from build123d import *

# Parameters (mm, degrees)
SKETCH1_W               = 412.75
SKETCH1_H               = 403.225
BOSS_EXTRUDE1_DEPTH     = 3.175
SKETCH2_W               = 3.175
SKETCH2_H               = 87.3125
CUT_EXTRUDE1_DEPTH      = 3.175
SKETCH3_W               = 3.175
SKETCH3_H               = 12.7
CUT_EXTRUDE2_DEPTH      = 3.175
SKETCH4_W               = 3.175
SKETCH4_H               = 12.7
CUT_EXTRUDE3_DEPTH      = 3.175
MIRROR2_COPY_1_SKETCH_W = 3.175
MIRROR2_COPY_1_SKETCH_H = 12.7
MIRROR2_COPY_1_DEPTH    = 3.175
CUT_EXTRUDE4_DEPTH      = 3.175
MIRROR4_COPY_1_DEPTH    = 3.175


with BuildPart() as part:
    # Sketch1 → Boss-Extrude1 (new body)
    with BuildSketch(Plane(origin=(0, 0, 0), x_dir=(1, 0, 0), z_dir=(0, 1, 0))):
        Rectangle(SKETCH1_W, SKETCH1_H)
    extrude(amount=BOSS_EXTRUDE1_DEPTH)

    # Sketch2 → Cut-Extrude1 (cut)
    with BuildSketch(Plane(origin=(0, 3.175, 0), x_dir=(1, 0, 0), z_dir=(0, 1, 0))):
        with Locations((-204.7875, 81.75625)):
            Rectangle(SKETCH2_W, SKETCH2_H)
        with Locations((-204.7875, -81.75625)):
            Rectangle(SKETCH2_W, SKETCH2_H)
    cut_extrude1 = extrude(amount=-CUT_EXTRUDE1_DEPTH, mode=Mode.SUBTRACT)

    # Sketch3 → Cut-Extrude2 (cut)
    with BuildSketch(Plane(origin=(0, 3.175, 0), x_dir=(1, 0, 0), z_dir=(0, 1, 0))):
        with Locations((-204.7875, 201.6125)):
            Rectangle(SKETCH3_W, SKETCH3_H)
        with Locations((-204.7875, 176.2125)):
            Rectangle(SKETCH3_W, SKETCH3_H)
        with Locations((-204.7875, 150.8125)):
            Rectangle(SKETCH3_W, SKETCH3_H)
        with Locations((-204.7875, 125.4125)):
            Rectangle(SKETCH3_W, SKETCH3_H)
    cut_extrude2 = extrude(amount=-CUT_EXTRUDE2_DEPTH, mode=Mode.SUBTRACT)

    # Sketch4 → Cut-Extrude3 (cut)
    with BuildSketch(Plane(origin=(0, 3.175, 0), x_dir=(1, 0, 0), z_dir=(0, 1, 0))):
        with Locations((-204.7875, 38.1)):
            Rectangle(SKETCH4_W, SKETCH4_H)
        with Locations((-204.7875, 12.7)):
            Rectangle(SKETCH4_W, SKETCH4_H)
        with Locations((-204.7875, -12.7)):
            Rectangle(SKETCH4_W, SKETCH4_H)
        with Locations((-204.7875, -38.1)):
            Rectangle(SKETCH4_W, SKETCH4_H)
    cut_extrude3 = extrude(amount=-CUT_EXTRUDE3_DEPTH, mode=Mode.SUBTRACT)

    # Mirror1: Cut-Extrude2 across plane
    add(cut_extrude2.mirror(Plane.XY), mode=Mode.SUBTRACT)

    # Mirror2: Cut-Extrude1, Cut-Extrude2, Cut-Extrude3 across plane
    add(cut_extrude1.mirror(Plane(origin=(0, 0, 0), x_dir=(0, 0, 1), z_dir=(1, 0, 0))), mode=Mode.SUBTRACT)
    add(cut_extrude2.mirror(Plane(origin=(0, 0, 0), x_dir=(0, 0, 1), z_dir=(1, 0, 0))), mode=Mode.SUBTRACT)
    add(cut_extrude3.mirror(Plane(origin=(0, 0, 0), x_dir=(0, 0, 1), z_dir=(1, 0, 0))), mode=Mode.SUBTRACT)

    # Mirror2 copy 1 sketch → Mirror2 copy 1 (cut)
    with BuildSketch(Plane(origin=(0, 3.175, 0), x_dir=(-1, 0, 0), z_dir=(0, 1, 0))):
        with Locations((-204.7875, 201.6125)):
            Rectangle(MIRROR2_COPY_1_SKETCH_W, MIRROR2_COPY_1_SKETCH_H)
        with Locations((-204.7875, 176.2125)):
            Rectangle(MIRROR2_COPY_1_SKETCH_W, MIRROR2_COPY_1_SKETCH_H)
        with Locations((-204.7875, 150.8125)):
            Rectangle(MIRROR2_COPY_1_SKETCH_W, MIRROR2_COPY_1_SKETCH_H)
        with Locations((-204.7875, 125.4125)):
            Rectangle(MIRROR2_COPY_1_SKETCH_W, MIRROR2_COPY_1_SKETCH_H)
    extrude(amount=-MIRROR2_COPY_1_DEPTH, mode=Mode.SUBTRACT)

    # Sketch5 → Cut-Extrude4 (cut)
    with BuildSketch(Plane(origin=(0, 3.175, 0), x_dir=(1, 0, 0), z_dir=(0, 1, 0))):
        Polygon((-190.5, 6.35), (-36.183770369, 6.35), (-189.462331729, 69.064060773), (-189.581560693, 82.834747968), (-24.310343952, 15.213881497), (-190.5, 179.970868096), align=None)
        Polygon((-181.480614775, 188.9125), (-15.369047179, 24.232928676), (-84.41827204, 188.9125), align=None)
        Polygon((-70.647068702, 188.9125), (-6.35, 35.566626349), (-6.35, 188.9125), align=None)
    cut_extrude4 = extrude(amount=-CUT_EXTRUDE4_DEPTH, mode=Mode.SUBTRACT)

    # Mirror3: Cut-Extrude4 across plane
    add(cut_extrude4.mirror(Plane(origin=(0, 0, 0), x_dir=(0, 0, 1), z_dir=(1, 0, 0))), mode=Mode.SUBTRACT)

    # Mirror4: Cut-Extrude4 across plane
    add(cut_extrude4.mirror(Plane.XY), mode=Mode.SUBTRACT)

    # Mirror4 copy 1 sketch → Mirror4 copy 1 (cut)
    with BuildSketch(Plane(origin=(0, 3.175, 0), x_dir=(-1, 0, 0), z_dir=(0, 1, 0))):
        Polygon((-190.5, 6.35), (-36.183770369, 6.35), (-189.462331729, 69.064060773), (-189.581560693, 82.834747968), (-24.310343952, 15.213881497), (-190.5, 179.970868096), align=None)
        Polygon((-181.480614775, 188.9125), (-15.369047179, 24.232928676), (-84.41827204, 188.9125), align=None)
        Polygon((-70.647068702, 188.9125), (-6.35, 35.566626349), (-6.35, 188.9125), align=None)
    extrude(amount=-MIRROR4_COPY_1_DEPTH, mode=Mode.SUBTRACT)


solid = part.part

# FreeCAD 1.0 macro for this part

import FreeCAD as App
import Part
import Sketcher
Q = App.Units.Quantity


def add_polygon(sketch, points):
    """Adds a closed chain of lines whose ends are joined by coincident constraints."""
    first, n = sketch.GeometryCount, len(points)
    for a, b in zip(points, points[1:] + points[:1]):
        sketch.addGeometry(Part.LineSegment(App.Vector(*a, 0), App.Vector(*b, 0)), False)
    for i in range(n):
        sketch.addConstraint(Sketcher.Constraint("Coincident", first + i, 2, first + (i + 1) % n, 1))

doc = App.newDocument("Part")
body = doc.addObject("PartDesign::Body", "Body")

sketch1 = body.newObject("Sketcher::SketchObject", "Sketch")
sketch1.AttachmentSupport = (doc.getObject("XZ_Plane"), [""])
sketch1.MapMode = "FlatFace"
add_polygon(sketch1, [(-206, -202), (-206, 202), (206, 202), (206, -202)])
sketch1.addConstraint(Sketcher.Constraint("Vertical", 0))
sketch1.addConstraint(Sketcher.Constraint("Horizontal", 1))
sketch1.addConstraint(Sketcher.Constraint("Vertical", 2))
sketch1.addConstraint(Sketcher.Constraint("Horizontal", 3))
sketch1.addConstraint(Sketcher.Constraint("Symmetric", 0, 2, 2, 2, -1, 1))
sketch1.addConstraint(Sketcher.Constraint("DistanceX", 1, 1, 1, 2, Q("16.25 in")))
sketch1.addConstraint(Sketcher.Constraint("DistanceY", 0, 1, 0, 2, Q("15.875 in")))
pad1 = body.newObject("PartDesign::Pad", "Pad")
pad1.Profile = sketch1
pad1.Length = Q("0.125 in")
pad1.Reversed = True

sketch2 = body.newObject("Sketcher::SketchObject", "Sketch001")
sketch2.AttachmentSupport = (doc.getObject("XZ_Plane"), [""])
sketch2.MapMode = "FlatFace"
sketch2.AttachmentOffset = App.Placement(App.Vector(0, 0, -0.125 * 25.4), App.Rotation())
add_polygon(sketch2, [(-206.4, -125.4), (-206.4, -38.1), (-203.2, -38.1), (-203.2, -125.4)])
add_polygon(sketch2, [(-206.4, 38.1), (-206.4, 125.4), (-203.2, 125.4), (-203.2, 38.1)])
sketch2.addConstraint(Sketcher.Constraint("Vertical", 0))
sketch2.addConstraint(Sketcher.Constraint("Horizontal", 1))
sketch2.addConstraint(Sketcher.Constraint("Vertical", 2))
sketch2.addConstraint(Sketcher.Constraint("Horizontal", 3))
sketch2.addConstraint(Sketcher.Constraint("Vertical", 4))
sketch2.addConstraint(Sketcher.Constraint("Horizontal", 5))
sketch2.addConstraint(Sketcher.Constraint("Vertical", 6))
sketch2.addConstraint(Sketcher.Constraint("Horizontal", 7))
sketch2.addConstraint(Sketcher.Constraint("Symmetric", 3, 2, 4, 2, -1))
sketch2.addConstraint(Sketcher.Constraint("Symmetric", 1, 2, 6, 2, -1))
sketch2.addConstraint(Sketcher.Constraint("DistanceX", 1, 2, -1, 1, Q("8 in")))
sketch2.addConstraint(Sketcher.Constraint("DistanceY", 1, 2, 6, 2, Q("3 in")))
sketch2.addConstraint(Sketcher.Constraint("DistanceX", 1, 1, 1, 2, Q("0.125 in")))
sketch2.addConstraint(Sketcher.Constraint("DistanceY", 0, 1, 0, 2, Q("3.4375 in")))
pocket1 = body.newObject("PartDesign::Pocket", "Pocket")
pocket1.Profile = sketch2
pocket1.Length = Q("0.125 in")
pocket1.Reversed = True

sketch3 = body.newObject("Sketcher::SketchObject", "Sketch002")
sketch3.AttachmentSupport = (doc.getObject("XZ_Plane"), [""])
sketch3.MapMode = "FlatFace"
sketch3.AttachmentOffset = App.Placement(App.Vector(0, 0, -0.125 * 25.4), App.Rotation())
add_polygon(sketch3, [(-206.4, -208), (-206.4, -195.3), (-203.2, -195.3), (-203.2, -208)])
add_polygon(sketch3, [(-206.4, -182.6), (-206.4, -169.9), (-203.2, -169.9), (-203.2, -182.6)])
add_polygon(sketch3, [(-206.4, -157.2), (-206.4, -144.5), (-203.2, -144.5), (-203.2, -157.2)])
add_polygon(sketch3, [(-206.4, -131.8), (-206.4, -119.1), (-203.2, -119.1), (-203.2, -131.8)])
sketch3.addConstraint(Sketcher.Constraint("Vertical", 0))
sketch3.addConstraint(Sketcher.Constraint("Horizontal", 1))
sketch3.addConstraint(Sketcher.Constraint("Vertical", 2))
sketch3.addConstraint(Sketcher.Constraint("Horizontal", 3))
sketch3.addConstraint(Sketcher.Constraint("Vertical", 4))
sketch3.addConstraint(Sketcher.Constraint("Horizontal", 5))
sketch3.addConstraint(Sketcher.Constraint("Vertical", 6))
sketch3.addConstraint(Sketcher.Constraint("Horizontal", 7))
sketch3.addConstraint(Sketcher.Constraint("Vertical", 8))
sketch3.addConstraint(Sketcher.Constraint("Horizontal", 9))
sketch3.addConstraint(Sketcher.Constraint("Vertical", 10))
sketch3.addConstraint(Sketcher.Constraint("Horizontal", 11))
sketch3.addConstraint(Sketcher.Constraint("Vertical", 12))
sketch3.addConstraint(Sketcher.Constraint("Horizontal", 13))
sketch3.addConstraint(Sketcher.Constraint("Vertical", 14))
sketch3.addConstraint(Sketcher.Constraint("Horizontal", 15))
sketch3.addConstraint(Sketcher.Constraint("Vertical", 3, 2, 4, 2))
sketch3.addConstraint(Sketcher.Constraint("Vertical", 2, 2, 5, 2))
sketch3.addConstraint(Sketcher.Constraint("Vertical", 7, 2, 8, 2))
sketch3.addConstraint(Sketcher.Constraint("Vertical", 6, 2, 9, 2))
sketch3.addConstraint(Sketcher.Constraint("Vertical", 11, 2, 12, 2))
sketch3.addConstraint(Sketcher.Constraint("Vertical", 10, 2, 13, 2))
sketch3.addConstraint(Sketcher.Constraint("Equal", 2, 4))
sketch3.addConstraint(Sketcher.Constraint("Equal", 6, 8))
sketch3.addConstraint(Sketcher.Constraint("Equal", 10, 12))
sketch3.addConstraint(Sketcher.Constraint("DistanceY", 0, 1, 0, 2, Q("0.5 in")))
sketch3.addConstraint(Sketcher.Constraint("DistanceX", 1, 2, -1, 1, Q("8 in")))
sketch3.addConstraint(Sketcher.Constraint("DistanceY", 0, 2, 4, 2, Q("1 in")))
sketch3.addConstraint(Sketcher.Constraint("DistanceY", 4, 2, 8, 2, Q("1 in")))
sketch3.addConstraint(Sketcher.Constraint("DistanceY", 8, 2, 12, 2, Q("1 in")))
sketch3.addConstraint(Sketcher.Constraint("DistanceX", 1, 1, 1, 2, Q("0.125 in")))
sketch3.addConstraint(Sketcher.Constraint("DistanceY", 0, 2, -1, 1, Q("7.6875 in")))
pocket2 = body.newObject("PartDesign::Pocket", "Pocket001")
pocket2.Profile = sketch3
pocket2.Length = Q("0.125 in")
pocket2.Reversed = True

sketch4 = body.newObject("Sketcher::SketchObject", "Sketch003")
sketch4.AttachmentSupport = (doc.getObject("XZ_Plane"), [""])
sketch4.MapMode = "FlatFace"
sketch4.AttachmentOffset = App.Placement(App.Vector(0, 0, -0.125 * 25.4), App.Rotation())
add_polygon(sketch4, [(-206.4, -44.5), (-206.4, -31.8), (-203.2, -31.8), (-203.2, -44.5)])
add_polygon(sketch4, [(-206.4, -19.1), (-206.4, -6.3), (-203.2, -6.3), (-203.2, -19.1)])
add_polygon(sketch4, [(-206.4, 6.3), (-206.4, 19.1), (-203.2, 19.1), (-203.2, 6.3)])
add_polygon(sketch4, [(-206.4, 31.8), (-206.4, 44.5), (-203.2, 44.5), (-203.2, 31.8)])
sketch4.addConstraint(Sketcher.Constraint("Vertical", 0))
sketch4.addConstraint(Sketcher.Constraint("Horizontal", 1))
sketch4.addConstraint(Sketcher.Constraint("Vertical", 2))
sketch4.addConstraint(Sketcher.Constraint("Horizontal", 3))
sketch4.addConstraint(Sketcher.Constraint("Vertical", 4))
sketch4.addConstraint(Sketcher.Constraint("Horizontal", 5))
sketch4.addConstraint(Sketcher.Constraint("Vertical", 6))
sketch4.addConstraint(Sketcher.Constraint("Horizontal", 7))
sketch4.addConstraint(Sketcher.Constraint("Vertical", 8))
sketch4.addConstraint(Sketcher.Constraint("Horizontal", 9))
sketch4.addConstraint(Sketcher.Constraint("Vertical", 10))
sketch4.addConstraint(Sketcher.Constraint("Horizontal", 11))
sketch4.addConstraint(Sketcher.Constraint("Vertical", 12))
sketch4.addConstraint(Sketcher.Constraint("Horizontal", 13))
sketch4.addConstraint(Sketcher.Constraint("Vertical", 14))
sketch4.addConstraint(Sketcher.Constraint("Horizontal", 15))
sketch4.addConstraint(Sketcher.Constraint("Symmetric", 7, 2, 8, 2, -1))
sketch4.addConstraint(Sketcher.Constraint("Symmetric", 5, 2, 10, 2, -1))
sketch4.addConstraint(Sketcher.Constraint("Symmetric", 3, 2, 12, 2, -1))
sketch4.addConstraint(Sketcher.Constraint("Symmetric", 1, 2, 14, 2, -1))
sketch4.addConstraint(Sketcher.Constraint("Vertical", 3, 2, 4, 2))
sketch4.addConstraint(Sketcher.Constraint("Vertical", 2, 2, 5, 2))
sketch4.addConstraint(Sketcher.Constraint("Equal", 2, 4))
sketch4.addConstraint(Sketcher.Constraint("DistanceY", 0, 1, 0, 2, Q("0.5 in")))
sketch4.addConstraint(Sketcher.Constraint("DistanceX", 1, 2, -1, 1, Q("8 in")))
sketch4.addConstraint(Sketcher.Constraint("DistanceY", 0, 2, 4, 2, Q("1 in")))
sketch4.addConstraint(Sketcher.Constraint("DistanceY", 4, 2, 8, 2, Q("1 in")))
sketch4.addConstraint(Sketcher.Constraint("DistanceX", 1, 1, 1, 2, Q("0.125 in")))
pocket3 = body.newObject("PartDesign::Pocket", "Pocket002")
pocket3.Profile = sketch4
pocket3.Length = Q("0.125 in")
pocket3.Reversed = True
doc.recompute()

mirrored = body.newObject("PartDesign::Mirrored", "Mirrored")
mirrored.Originals = [pocket2]
mirrored.MirrorPlane = (doc.getObject("XY_Plane"), [""])
body.Tip = mirrored
doc.recompute()

mirrored2 = body.newObject("PartDesign::Mirrored", "Mirrored001")
mirrored2.Originals = [pocket1, pocket2, pocket3]
mirrored2.MirrorPlane = (doc.getObject("YZ_Plane"), [""])
body.Tip = mirrored2

sketch5 = body.newObject("Sketcher::SketchObject", "Sketch004")
sketch5.AttachmentSupport = (doc.getObject("XZ_Plane"), [""])
sketch5.MapMode = "FlatFace"
sketch5.AttachmentOffset = App.Placement(App.Vector(0, 0, -0.125 * 25.4), App.Rotation())
add_polygon(sketch5, [(206.4, 208), (206.4, 195.3), (203.2, 195.3), (203.2, 208)])
add_polygon(sketch5, [(206.4, 182.6), (206.4, 169.9), (203.2, 169.9), (203.2, 182.6)])
add_polygon(sketch5, [(206.4, 157.2), (206.4, 144.5), (203.2, 144.5), (203.2, 157.2)])
add_polygon(sketch5, [(206.4, 131.8), (206.4, 119.1), (203.2, 119.1), (203.2, 131.8)])
sketch5.addConstraint(Sketcher.Constraint("Vertical", 0))
sketch5.addConstraint(Sketcher.Constraint("Horizontal", 1))
sketch5.addConstraint(Sketcher.Constraint("Vertical", 2))
sketch5.addConstraint(Sketcher.Constraint("Horizontal", 3))
sketch5.addConstraint(Sketcher.Constraint("Vertical", 4))
sketch5.addConstraint(Sketcher.Constraint("Horizontal", 5))
sketch5.addConstraint(Sketcher.Constraint("Vertical", 6))
sketch5.addConstraint(Sketcher.Constraint("Horizontal", 7))
sketch5.addConstraint(Sketcher.Constraint("Vertical", 8))
sketch5.addConstraint(Sketcher.Constraint("Horizontal", 9))
sketch5.addConstraint(Sketcher.Constraint("Vertical", 10))
sketch5.addConstraint(Sketcher.Constraint("Horizontal", 11))
sketch5.addConstraint(Sketcher.Constraint("Vertical", 12))
sketch5.addConstraint(Sketcher.Constraint("Horizontal", 13))
sketch5.addConstraint(Sketcher.Constraint("Vertical", 14))
sketch5.addConstraint(Sketcher.Constraint("Horizontal", 15))
sketch5.addConstraint(Sketcher.Constraint("Vertical", 3, 2, 4, 2))
sketch5.addConstraint(Sketcher.Constraint("Vertical", 2, 2, 5, 2))
sketch5.addConstraint(Sketcher.Constraint("Vertical", 7, 2, 8, 2))
sketch5.addConstraint(Sketcher.Constraint("Vertical", 6, 2, 9, 2))
sketch5.addConstraint(Sketcher.Constraint("Vertical", 11, 2, 12, 2))
sketch5.addConstraint(Sketcher.Constraint("Vertical", 10, 2, 13, 2))
sketch5.addConstraint(Sketcher.Constraint("Equal", 2, 4))
sketch5.addConstraint(Sketcher.Constraint("Equal", 6, 8))
sketch5.addConstraint(Sketcher.Constraint("Equal", 10, 12))
sketch5.addConstraint(Sketcher.Constraint("DistanceY", 0, 2, 0, 1, Q("0.5 in")))
sketch5.addConstraint(Sketcher.Constraint("DistanceX", -1, 1, 1, 2, Q("8 in")))
sketch5.addConstraint(Sketcher.Constraint("DistanceY", 4, 2, 0, 2, Q("1 in")))
sketch5.addConstraint(Sketcher.Constraint("DistanceY", 8, 2, 4, 2, Q("1 in")))
sketch5.addConstraint(Sketcher.Constraint("DistanceY", 12, 2, 8, 2, Q("1 in")))
sketch5.addConstraint(Sketcher.Constraint("DistanceX", 1, 2, 1, 1, Q("0.125 in")))
sketch5.addConstraint(Sketcher.Constraint("DistanceY", -1, 1, 0, 2, Q("7.6875 in")))
pocket4 = body.newObject("PartDesign::Pocket", "Pocket003")
pocket4.Profile = sketch5
pocket4.Length = Q("0.125 in")
pocket4.Reversed = True

sketch6 = body.newObject("Sketcher::SketchObject", "Sketch005")
sketch6.AttachmentSupport = (doc.getObject("XZ_Plane"), [""])
sketch6.MapMode = "FlatFace"
sketch6.AttachmentOffset = App.Placement(App.Vector(0, 0, -0.125 * 25.4), App.Rotation())
add_polygon(sketch6, [(-190, -6), (-36, -6), (-189, -69), (-190, -83), (-24, -15), (-190, -180)])
add_polygon(sketch6, [(-181, -189), (-15, -24), (-84, -189)])
add_polygon(sketch6, [(-71, -189), (-6, -36), (-6, -189)])
sketch6.addConstraint(Sketcher.Constraint("Horizontal", 0))
sketch6.addConstraint(Sketcher.Constraint("Vertical", 5))
sketch6.addConstraint(Sketcher.Constraint("Horizontal", 8))
sketch6.addConstraint(Sketcher.Constraint("Vertical", 10))
sketch6.addConstraint(Sketcher.Constraint("Horizontal", 11))
sketch6.addConstraint(Sketcher.Constraint("Parallel", 1, 3))
sketch6.addConstraint(Sketcher.Constraint("Parallel", 4, 6))
sketch6.addConstraint(Sketcher.Constraint("Parallel", 7, 9))
sketch6.addConstraint(Sketcher.Constraint("Horizontal", 8, 2, 10, 2))
sketch6.addConstraint(Sketcher.Constraint("Equal", 3, 7))
sketch6.addConstraint(Sketcher.Constraint("DistanceX", 4, 2, -1, 1, Q("7.5 in")))
sketch6.addConstraint(Sketcher.Constraint("DistanceY", 0, 2, -1, 1, Q("0.25 in")))
sketch6.addConstraint(Sketcher.Constraint("DistanceX", 9, 2, -1, 1, Q("0.25 in")))
sketch6.addConstraint(Sketcher.Constraint("DistanceY", 7, 2, -1, 1, Q("7.4375 in")))
sketch6.addConstraint(Sketcher.Constraint("DistanceX", 3, 2, -1, 1, Q("0.9571002 in")))
sketch6.addConstraint(Sketcher.Constraint("DistanceX", 0, 1, 0, 2, Q("154.31623 mm")))
sketch6.addConstraint(Sketcher.Constraint("DistanceX", 11, 2, 11, 1, Q("64.297069 mm")))
sketch6.addConstraint(Sketcher.Constraint("DistanceY", 5, 1, 5, 2, Q("173.620868 mm")))
sketch6.addConstraint(Sketcher.Constraint("Distance", 1, Q("165.612109 mm")))
sketch6.addConstraint(Sketcher.Constraint("Distance", 6, Q("233.906849 mm")))
sketch6.addConstraint(Sketcher.Constraint("DistanceX", 8, 2, 8, 1, Q("97.062343 mm")))
sketch6.addConstraint(Sketcher.Constraint("DistanceY", 10, 2, 10, 1, Q("153.345874 mm")))
sketch6.addConstraint(Sketcher.Constraint("DistanceX", 1, 2, -1, 1, Q("189.462332 mm")))
sketch6.addConstraint(Sketcher.Constraint("DistanceX", 2, 2, 7, 2, Q("105.163289 mm")))
pocket5 = body.newObject("PartDesign::Pocket", "Pocket004")
pocket5.Profile = sketch6
pocket5.Length = Q("0.125 in")
pocket5.Reversed = True
doc.recompute()

mirrored3 = body.newObject("PartDesign::Mirrored", "Mirrored002")
mirrored3.Originals = [pocket5]
mirrored3.MirrorPlane = (doc.getObject("YZ_Plane"), [""])
body.Tip = mirrored3
doc.recompute()

mirrored4 = body.newObject("PartDesign::Mirrored", "Mirrored003")
mirrored4.Originals = [pocket5]
mirrored4.MirrorPlane = (doc.getObject("XY_Plane"), [""])
body.Tip = mirrored4

sketch7 = body.newObject("Sketcher::SketchObject", "Sketch006")
sketch7.AttachmentSupport = (doc.getObject("XZ_Plane"), [""])
sketch7.MapMode = "FlatFace"
sketch7.AttachmentOffset = App.Placement(App.Vector(0, 0, -0.125 * 25.4), App.Rotation())
add_polygon(sketch7, [(190, 6), (36, 6), (189, 69), (190, 83), (24, 15), (190, 180)])
add_polygon(sketch7, [(181, 189), (15, 24), (84, 189)])
add_polygon(sketch7, [(71, 189), (6, 36), (6, 189)])
sketch7.addConstraint(Sketcher.Constraint("Horizontal", 0))
sketch7.addConstraint(Sketcher.Constraint("Vertical", 5))
sketch7.addConstraint(Sketcher.Constraint("Horizontal", 8))
sketch7.addConstraint(Sketcher.Constraint("Vertical", 10))
sketch7.addConstraint(Sketcher.Constraint("Horizontal", 11))
sketch7.addConstraint(Sketcher.Constraint("Parallel", 1, 3))
sketch7.addConstraint(Sketcher.Constraint("Parallel", 4, 6))
sketch7.addConstraint(Sketcher.Constraint("Parallel", 7, 9))
sketch7.addConstraint(Sketcher.Constraint("Horizontal", 8, 2, 10, 2))
sketch7.addConstraint(Sketcher.Constraint("Equal", 3, 7))
sketch7.addConstraint(Sketcher.Constraint("DistanceX", -1, 1, 4, 2, Q("7.5 in")))
sketch7.addConstraint(Sketcher.Constraint("DistanceY", -1, 1, 0, 2, Q("0.25 in")))
sketch7.addConstraint(Sketcher.Constraint("DistanceX", -1, 1, 9, 2, Q("0.25 in")))
sketch7.addConstraint(Sketcher.Constraint("DistanceY", -1, 1, 7, 2, Q("7.4375 in")))
sketch7.addConstraint(Sketcher.Constraint("DistanceX", -1, 1, 3, 2, Q("0.9571002 in")))
sketch7.addConstraint(Sketcher.Constraint("DistanceX", 0, 2, 0, 1, Q("154.31623 mm")))
sketch7.addConstraint(Sketcher.Constraint("DistanceX", 11, 1, 11, 2, Q("64.297069 mm")))
sketch7.addConstraint(Sketcher.Constraint("DistanceY", 5, 2, 5, 1, Q("173.620868 mm")))
sketch7.addConstraint(Sketcher.Constraint("Distance", 1, Q("165.612109 mm")))
sketch7.addConstraint(Sketcher.Constraint("Distance", 6, Q("233.906849 mm")))
sketch7.addConstraint(Sketcher.Constraint("DistanceX", 8, 1, 8, 2, Q("97.062343 mm")))
sketch7.addConstraint(Sketcher.Constraint("DistanceY", 10, 1, 10, 2, Q("153.345874 mm")))
sketch7.addConstraint(Sketcher.Constraint("DistanceX", -1, 1, 1, 2, Q("189.462332 mm")))
sketch7.addConstraint(Sketcher.Constraint("DistanceX", 7, 2, 2, 2, Q("105.163289 mm")))
pocket6 = body.newObject("PartDesign::Pocket", "Pocket005")
pocket6.Profile = sketch7
pocket6.Length = Q("0.125 in")
pocket6.Reversed = True

doc.recompute()
